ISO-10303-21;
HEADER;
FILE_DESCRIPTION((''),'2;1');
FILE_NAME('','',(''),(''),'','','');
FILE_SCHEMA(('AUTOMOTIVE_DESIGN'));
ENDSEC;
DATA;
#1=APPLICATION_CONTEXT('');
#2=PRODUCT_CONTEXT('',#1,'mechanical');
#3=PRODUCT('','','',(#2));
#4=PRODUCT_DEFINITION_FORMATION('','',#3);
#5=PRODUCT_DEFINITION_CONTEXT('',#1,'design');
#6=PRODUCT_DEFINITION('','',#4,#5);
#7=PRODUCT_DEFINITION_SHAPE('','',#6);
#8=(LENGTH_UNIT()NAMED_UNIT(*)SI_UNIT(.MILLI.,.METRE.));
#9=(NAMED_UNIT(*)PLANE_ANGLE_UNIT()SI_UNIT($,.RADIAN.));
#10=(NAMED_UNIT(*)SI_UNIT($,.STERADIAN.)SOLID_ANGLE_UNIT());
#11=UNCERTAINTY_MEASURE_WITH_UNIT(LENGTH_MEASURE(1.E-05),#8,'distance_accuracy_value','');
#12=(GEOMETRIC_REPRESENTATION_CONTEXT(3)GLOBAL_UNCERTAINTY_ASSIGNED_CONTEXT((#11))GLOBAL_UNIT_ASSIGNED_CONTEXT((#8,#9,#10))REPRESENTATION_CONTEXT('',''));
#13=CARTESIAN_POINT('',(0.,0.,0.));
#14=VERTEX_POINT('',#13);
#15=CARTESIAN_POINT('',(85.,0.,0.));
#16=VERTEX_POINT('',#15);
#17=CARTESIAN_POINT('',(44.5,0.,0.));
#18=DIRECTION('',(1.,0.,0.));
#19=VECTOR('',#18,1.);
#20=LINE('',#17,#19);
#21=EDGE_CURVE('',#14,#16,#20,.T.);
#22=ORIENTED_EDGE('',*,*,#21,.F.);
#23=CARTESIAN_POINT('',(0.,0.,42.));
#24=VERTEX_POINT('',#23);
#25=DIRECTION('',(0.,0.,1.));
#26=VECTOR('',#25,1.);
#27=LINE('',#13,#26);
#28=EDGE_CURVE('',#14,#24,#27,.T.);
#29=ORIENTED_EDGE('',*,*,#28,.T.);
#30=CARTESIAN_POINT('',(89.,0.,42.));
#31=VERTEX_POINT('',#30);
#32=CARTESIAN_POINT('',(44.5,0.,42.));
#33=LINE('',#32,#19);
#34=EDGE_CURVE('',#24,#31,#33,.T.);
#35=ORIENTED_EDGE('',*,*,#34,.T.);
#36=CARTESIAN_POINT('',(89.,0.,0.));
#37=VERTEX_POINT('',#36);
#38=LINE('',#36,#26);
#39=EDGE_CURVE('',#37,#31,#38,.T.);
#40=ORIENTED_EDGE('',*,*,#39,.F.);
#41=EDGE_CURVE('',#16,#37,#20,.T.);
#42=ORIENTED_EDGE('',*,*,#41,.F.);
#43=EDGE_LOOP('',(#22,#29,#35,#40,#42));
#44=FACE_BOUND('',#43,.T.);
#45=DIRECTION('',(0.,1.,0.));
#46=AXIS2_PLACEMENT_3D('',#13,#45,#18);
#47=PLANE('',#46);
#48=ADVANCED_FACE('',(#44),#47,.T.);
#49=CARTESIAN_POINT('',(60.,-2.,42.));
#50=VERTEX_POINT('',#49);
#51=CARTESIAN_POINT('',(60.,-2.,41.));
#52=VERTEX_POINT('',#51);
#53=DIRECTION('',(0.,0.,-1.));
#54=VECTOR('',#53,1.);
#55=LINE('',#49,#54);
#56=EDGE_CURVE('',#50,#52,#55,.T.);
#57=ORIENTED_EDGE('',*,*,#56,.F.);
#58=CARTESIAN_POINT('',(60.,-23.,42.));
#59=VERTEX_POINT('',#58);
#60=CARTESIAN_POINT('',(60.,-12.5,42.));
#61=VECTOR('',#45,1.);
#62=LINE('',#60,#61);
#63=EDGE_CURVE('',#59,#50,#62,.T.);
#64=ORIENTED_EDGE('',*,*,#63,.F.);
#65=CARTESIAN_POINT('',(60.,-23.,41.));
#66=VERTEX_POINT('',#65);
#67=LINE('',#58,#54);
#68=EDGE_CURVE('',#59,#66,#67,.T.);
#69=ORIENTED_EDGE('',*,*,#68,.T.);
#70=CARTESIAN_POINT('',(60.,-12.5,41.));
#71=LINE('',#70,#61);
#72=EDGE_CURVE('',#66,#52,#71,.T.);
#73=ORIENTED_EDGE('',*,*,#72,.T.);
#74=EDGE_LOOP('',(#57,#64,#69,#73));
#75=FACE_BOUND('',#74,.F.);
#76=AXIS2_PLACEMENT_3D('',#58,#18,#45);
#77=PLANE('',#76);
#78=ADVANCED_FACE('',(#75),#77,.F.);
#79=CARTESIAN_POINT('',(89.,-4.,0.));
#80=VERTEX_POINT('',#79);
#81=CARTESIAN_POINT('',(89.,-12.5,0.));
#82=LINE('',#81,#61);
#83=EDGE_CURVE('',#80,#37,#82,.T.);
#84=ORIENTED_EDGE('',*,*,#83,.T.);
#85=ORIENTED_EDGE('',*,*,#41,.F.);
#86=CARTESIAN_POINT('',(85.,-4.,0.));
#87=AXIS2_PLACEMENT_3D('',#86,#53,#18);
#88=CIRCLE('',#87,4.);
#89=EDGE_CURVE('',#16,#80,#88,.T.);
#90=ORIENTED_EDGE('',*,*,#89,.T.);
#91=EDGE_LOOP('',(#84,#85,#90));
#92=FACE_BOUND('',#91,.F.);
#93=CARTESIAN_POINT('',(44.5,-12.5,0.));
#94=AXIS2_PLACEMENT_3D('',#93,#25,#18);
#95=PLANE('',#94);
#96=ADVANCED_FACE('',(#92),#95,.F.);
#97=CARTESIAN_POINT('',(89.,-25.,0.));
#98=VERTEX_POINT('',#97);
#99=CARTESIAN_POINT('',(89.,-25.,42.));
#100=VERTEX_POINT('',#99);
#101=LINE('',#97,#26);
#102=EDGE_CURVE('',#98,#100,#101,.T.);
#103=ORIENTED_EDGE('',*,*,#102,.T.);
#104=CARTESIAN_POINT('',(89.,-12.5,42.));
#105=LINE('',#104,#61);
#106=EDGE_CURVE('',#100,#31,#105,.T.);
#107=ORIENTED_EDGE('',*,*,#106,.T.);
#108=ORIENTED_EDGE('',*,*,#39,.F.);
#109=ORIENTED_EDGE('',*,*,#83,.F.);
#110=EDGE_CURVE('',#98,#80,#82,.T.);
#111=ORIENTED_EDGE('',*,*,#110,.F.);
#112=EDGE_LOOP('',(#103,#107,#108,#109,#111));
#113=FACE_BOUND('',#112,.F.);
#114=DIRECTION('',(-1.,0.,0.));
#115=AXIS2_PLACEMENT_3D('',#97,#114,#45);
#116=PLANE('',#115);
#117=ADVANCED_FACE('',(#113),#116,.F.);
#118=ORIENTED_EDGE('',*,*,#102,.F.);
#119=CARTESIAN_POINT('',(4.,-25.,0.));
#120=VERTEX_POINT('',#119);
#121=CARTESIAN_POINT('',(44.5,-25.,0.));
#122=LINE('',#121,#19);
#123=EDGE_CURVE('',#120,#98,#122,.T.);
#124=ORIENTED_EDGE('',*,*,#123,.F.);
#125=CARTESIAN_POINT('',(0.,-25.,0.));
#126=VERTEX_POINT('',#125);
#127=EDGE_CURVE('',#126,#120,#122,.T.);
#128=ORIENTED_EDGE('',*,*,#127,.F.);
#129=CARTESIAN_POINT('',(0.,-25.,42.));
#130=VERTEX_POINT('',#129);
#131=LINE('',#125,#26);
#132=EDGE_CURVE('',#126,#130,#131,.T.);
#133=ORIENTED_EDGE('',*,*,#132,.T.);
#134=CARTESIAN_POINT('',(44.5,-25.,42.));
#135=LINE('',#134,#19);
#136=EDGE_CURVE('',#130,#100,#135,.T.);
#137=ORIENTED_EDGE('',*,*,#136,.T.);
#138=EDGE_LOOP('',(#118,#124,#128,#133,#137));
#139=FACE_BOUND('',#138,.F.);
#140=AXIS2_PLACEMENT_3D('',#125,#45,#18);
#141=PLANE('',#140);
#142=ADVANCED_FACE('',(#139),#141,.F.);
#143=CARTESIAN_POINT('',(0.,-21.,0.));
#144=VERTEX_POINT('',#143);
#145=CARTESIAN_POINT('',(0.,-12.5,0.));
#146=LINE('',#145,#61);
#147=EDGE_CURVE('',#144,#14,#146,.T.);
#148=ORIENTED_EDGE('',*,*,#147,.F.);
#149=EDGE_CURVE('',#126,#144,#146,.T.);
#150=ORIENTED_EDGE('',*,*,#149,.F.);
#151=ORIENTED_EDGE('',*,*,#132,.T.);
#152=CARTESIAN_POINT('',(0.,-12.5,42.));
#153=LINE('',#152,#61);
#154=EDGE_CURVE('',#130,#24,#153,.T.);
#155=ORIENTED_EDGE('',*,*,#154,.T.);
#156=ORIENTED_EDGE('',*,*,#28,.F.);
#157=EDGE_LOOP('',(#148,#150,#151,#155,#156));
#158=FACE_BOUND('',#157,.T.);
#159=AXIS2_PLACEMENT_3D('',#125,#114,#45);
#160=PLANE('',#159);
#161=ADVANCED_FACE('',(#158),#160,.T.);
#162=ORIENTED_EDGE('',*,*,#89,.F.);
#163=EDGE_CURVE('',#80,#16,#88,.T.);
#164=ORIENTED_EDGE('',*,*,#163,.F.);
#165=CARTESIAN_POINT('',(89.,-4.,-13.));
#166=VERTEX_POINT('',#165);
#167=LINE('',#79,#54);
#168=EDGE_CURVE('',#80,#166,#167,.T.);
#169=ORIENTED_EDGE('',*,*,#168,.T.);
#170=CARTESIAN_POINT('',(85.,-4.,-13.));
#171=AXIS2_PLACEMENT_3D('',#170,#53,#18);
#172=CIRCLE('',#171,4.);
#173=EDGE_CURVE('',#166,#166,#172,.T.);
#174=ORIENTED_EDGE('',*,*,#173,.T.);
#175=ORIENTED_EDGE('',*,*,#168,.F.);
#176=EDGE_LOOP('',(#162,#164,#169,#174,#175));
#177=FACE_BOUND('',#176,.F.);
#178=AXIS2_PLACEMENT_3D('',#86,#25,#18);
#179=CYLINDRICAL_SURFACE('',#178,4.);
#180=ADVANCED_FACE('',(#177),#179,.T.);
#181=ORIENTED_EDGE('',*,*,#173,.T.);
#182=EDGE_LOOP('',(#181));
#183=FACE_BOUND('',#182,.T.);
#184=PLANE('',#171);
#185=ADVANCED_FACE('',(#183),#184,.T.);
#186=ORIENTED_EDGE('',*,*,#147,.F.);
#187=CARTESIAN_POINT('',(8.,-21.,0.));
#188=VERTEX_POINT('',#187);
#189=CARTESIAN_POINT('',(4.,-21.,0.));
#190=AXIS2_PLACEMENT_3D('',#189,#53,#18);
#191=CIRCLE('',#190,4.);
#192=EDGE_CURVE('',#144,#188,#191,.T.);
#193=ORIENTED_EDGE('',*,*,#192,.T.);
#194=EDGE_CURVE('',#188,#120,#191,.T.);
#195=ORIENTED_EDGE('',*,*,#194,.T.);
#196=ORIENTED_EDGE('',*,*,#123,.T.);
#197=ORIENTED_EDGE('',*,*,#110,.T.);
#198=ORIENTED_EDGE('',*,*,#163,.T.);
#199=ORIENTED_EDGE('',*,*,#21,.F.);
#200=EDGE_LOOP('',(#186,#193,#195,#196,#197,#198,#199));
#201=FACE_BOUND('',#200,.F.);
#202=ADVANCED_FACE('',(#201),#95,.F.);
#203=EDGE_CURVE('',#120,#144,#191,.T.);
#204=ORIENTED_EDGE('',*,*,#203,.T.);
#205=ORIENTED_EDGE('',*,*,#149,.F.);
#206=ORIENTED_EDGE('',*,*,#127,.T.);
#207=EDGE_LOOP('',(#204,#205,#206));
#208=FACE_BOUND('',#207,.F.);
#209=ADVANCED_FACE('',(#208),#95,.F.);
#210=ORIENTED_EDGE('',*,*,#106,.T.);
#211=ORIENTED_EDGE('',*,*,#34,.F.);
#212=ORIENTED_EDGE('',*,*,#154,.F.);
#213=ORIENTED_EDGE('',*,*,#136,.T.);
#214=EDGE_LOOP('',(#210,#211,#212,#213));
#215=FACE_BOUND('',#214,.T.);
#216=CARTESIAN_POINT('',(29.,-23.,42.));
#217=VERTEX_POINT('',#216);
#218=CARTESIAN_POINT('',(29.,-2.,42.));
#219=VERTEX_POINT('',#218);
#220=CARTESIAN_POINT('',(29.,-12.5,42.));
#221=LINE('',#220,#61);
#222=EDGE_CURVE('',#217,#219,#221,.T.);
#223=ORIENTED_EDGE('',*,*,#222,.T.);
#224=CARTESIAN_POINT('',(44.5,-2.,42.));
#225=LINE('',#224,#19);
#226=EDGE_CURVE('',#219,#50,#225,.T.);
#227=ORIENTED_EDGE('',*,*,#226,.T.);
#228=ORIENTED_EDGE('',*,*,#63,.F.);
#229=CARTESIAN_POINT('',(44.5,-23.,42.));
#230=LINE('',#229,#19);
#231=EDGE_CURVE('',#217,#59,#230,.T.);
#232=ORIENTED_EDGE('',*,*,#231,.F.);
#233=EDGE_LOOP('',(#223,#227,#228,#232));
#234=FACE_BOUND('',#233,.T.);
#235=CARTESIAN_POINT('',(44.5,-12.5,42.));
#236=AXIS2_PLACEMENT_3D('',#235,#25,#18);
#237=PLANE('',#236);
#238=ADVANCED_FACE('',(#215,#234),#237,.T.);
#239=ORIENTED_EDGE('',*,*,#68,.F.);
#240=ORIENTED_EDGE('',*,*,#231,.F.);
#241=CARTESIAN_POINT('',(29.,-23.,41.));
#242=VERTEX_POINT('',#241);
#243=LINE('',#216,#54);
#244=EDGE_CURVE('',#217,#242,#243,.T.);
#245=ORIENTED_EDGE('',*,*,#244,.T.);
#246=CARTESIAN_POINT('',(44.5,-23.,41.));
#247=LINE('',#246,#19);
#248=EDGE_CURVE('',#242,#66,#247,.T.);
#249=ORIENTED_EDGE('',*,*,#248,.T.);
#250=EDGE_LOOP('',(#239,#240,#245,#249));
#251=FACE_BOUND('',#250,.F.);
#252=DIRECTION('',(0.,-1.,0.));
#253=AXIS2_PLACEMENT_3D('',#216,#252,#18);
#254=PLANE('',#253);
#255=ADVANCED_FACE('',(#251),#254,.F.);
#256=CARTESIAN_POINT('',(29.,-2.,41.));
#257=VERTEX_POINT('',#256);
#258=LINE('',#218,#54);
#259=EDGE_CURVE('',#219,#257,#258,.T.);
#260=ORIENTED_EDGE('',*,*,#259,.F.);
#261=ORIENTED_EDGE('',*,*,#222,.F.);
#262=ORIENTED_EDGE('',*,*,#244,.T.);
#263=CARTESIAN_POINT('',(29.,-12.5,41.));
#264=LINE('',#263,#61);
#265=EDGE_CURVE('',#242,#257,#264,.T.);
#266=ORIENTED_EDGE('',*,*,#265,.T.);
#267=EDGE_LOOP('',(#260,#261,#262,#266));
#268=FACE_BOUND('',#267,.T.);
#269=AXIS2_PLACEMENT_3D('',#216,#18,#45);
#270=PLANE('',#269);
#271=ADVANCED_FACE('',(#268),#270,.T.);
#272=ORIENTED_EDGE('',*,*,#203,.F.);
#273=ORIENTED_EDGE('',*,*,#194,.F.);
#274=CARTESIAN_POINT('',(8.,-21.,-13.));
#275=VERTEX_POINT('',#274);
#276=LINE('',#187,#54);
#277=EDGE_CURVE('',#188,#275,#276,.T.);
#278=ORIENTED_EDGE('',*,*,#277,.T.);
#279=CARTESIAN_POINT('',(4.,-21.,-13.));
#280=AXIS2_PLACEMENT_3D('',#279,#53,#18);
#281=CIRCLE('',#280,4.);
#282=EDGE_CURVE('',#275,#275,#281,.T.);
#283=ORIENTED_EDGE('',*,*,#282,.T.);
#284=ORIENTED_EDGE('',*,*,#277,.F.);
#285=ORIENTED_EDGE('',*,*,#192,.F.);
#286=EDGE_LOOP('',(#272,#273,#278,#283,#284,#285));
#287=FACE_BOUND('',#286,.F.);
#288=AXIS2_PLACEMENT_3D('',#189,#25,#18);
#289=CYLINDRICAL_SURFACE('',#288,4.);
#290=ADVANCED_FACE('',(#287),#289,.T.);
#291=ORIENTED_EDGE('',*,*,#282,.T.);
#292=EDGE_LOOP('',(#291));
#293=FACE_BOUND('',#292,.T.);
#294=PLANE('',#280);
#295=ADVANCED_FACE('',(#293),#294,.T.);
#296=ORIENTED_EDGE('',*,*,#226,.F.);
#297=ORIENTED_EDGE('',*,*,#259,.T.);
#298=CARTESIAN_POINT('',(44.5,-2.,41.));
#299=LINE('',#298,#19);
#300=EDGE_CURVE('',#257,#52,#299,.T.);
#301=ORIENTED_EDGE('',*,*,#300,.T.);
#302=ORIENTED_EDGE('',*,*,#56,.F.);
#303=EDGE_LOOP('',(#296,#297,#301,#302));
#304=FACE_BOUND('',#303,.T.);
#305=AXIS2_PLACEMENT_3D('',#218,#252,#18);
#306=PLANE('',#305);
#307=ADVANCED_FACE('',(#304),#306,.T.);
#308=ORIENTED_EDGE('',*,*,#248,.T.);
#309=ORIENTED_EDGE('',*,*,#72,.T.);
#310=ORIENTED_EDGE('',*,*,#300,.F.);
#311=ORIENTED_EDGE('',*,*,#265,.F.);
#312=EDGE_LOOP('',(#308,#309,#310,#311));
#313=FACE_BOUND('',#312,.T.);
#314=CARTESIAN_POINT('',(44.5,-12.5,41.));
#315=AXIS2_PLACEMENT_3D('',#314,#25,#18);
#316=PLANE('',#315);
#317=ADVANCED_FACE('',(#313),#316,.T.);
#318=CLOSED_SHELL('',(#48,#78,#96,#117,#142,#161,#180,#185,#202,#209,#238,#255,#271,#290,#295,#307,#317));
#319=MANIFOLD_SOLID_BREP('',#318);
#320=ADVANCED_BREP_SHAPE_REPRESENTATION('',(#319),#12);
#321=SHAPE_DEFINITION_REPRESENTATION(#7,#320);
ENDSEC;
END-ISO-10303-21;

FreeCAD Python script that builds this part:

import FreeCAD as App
import Part
import Sketcher

V = App.Vector

doc = App.newDocument("Part")
body = doc.addObject("PartDesign::Body", "Body")

sketch1 = body.newObject("Sketcher::SketchObject", "Sketch")
sketch1.AttachmentSupport = (doc.getObject("XY_Plane"), [""])
sketch1.MapMode = "FlatFace"
sketch1.addGeometry(Part.LineSegment(V(0, 0, 0), V(0, -25, 0)), False)
sketch1.addGeometry(Part.LineSegment(V(0, -25, 0), V(89, -25, 0)), False)
sketch1.addGeometry(Part.LineSegment(V(89, -25, 0), V(89, 0, 0)), False)
sketch1.addGeometry(Part.LineSegment(V(89, 0, 0), V(0, 0, 0)), False)
sketch1.addConstraint(Sketcher.Constraint("Coincident", 0, 2, 1, 1))
sketch1.addConstraint(Sketcher.Constraint("Coincident", 1, 2, 2, 1))
sketch1.addConstraint(Sketcher.Constraint("Coincident", 2, 2, 3, 1))
sketch1.addConstraint(Sketcher.Constraint("Coincident", 3, 2, 0, 1))
sketch1.addConstraint(Sketcher.Constraint("Vertical", 0))
sketch1.addConstraint(Sketcher.Constraint("Horizontal", 1))
sketch1.addConstraint(Sketcher.Constraint("Vertical", 2))
sketch1.addConstraint(Sketcher.Constraint("Horizontal", 3))
sketch1.addConstraint(Sketcher.Constraint("Coincident", 3, 2, -1, 1))
sketch1.addConstraint(Sketcher.Constraint("DistanceX", 1, 1, 1, 2, 89.0))
sketch1.addConstraint(Sketcher.Constraint("DistanceY", 0, 2, 0, 1, 25.0))
pad1 = body.newObject("PartDesign::Pad", "Pad")
pad1.Profile = sketch1
pad1.Length = 42

sketch2 = body.newObject("Sketcher::SketchObject", "Sketch001")
sketch2.AttachmentSupport = (doc.getObject("XY_Plane"), [""])
sketch2.MapMode = "FlatFace"
sketch2.addGeometry(Part.Circle(V(85, -4, 0), V(0, 0, 1), 4), False)
sketch2.addGeometry(Part.Circle(V(4, -21, 0), V(0, 0, 1), 4), False)
sketch2.addConstraint(Sketcher.Constraint("Equal", 0, 1))
sketch2.addConstraint(Sketcher.Constraint("Diameter", 0, 8.0))
sketch2.addConstraint(Sketcher.Constraint("DistanceX", -1, 1, 0, 3, 85.0))
sketch2.addConstraint(Sketcher.Constraint("DistanceY", 0, 3, -1, 1, 4.0))
sketch2.addConstraint(Sketcher.Constraint("DistanceX", -1, 1, 1, 3, 4.0))
sketch2.addConstraint(Sketcher.Constraint("DistanceY", 1, 3, -1, 1, 21.0))
pad2 = body.newObject("PartDesign::Pad", "Pad001")
pad2.Profile = sketch2
pad2.Length = 13
pad2.Reversed = True

sketch3 = body.newObject("Sketcher::SketchObject", "Sketch002")
sketch3.AttachmentSupport = (doc.getObject("XY_Plane"), [""])
sketch3.MapMode = "FlatFace"
sketch3.AttachmentOffset = App.Placement(V(0, 0, 42), App.Rotation())
sketch3.addGeometry(Part.LineSegment(V(29, -2, 0), V(29, -23, 0)), False)
sketch3.addGeometry(Part.LineSegment(V(29, -23, 0), V(60, -23, 0)), False)
sketch3.addGeometry(Part.LineSegment(V(60, -23, 0), V(60, -2, 0)), False)
sketch3.addGeometry(Part.LineSegment(V(60, -2, 0), V(29, -2, 0)), False)
sketch3.addConstraint(Sketcher.Constraint("Coincident", 0, 2, 1, 1))
sketch3.addConstraint(Sketcher.Constraint("Coincident", 1, 2, 2, 1))
sketch3.addConstraint(Sketcher.Constraint("Coincident", 2, 2, 3, 1))
sketch3.addConstraint(Sketcher.Constraint("Coincident", 3, 2, 0, 1))
sketch3.addConstraint(Sketcher.Constraint("Vertical", 0))
sketch3.addConstraint(Sketcher.Constraint("Horizontal", 1))
sketch3.addConstraint(Sketcher.Constraint("Vertical", 2))
sketch3.addConstraint(Sketcher.Constraint("Horizontal", 3))
sketch3.addConstraint(Sketcher.Constraint("DistanceX", 1, 1, 1, 2, 31.0))
sketch3.addConstraint(Sketcher.Constraint("DistanceY", 0, 2, 0, 1, 21.0))
sketch3.addConstraint(Sketcher.Constraint("DistanceX", -1, 1, 0, 2, 29.0))
sketch3.addConstraint(Sketcher.Constraint("DistanceY", 0, 2, -1, 1, 23.0))
pocket1 = body.newObject("PartDesign::Pocket", "Pocket")
pocket1.Profile = sketch3
pocket1.Length = 1

doc.recompute()
